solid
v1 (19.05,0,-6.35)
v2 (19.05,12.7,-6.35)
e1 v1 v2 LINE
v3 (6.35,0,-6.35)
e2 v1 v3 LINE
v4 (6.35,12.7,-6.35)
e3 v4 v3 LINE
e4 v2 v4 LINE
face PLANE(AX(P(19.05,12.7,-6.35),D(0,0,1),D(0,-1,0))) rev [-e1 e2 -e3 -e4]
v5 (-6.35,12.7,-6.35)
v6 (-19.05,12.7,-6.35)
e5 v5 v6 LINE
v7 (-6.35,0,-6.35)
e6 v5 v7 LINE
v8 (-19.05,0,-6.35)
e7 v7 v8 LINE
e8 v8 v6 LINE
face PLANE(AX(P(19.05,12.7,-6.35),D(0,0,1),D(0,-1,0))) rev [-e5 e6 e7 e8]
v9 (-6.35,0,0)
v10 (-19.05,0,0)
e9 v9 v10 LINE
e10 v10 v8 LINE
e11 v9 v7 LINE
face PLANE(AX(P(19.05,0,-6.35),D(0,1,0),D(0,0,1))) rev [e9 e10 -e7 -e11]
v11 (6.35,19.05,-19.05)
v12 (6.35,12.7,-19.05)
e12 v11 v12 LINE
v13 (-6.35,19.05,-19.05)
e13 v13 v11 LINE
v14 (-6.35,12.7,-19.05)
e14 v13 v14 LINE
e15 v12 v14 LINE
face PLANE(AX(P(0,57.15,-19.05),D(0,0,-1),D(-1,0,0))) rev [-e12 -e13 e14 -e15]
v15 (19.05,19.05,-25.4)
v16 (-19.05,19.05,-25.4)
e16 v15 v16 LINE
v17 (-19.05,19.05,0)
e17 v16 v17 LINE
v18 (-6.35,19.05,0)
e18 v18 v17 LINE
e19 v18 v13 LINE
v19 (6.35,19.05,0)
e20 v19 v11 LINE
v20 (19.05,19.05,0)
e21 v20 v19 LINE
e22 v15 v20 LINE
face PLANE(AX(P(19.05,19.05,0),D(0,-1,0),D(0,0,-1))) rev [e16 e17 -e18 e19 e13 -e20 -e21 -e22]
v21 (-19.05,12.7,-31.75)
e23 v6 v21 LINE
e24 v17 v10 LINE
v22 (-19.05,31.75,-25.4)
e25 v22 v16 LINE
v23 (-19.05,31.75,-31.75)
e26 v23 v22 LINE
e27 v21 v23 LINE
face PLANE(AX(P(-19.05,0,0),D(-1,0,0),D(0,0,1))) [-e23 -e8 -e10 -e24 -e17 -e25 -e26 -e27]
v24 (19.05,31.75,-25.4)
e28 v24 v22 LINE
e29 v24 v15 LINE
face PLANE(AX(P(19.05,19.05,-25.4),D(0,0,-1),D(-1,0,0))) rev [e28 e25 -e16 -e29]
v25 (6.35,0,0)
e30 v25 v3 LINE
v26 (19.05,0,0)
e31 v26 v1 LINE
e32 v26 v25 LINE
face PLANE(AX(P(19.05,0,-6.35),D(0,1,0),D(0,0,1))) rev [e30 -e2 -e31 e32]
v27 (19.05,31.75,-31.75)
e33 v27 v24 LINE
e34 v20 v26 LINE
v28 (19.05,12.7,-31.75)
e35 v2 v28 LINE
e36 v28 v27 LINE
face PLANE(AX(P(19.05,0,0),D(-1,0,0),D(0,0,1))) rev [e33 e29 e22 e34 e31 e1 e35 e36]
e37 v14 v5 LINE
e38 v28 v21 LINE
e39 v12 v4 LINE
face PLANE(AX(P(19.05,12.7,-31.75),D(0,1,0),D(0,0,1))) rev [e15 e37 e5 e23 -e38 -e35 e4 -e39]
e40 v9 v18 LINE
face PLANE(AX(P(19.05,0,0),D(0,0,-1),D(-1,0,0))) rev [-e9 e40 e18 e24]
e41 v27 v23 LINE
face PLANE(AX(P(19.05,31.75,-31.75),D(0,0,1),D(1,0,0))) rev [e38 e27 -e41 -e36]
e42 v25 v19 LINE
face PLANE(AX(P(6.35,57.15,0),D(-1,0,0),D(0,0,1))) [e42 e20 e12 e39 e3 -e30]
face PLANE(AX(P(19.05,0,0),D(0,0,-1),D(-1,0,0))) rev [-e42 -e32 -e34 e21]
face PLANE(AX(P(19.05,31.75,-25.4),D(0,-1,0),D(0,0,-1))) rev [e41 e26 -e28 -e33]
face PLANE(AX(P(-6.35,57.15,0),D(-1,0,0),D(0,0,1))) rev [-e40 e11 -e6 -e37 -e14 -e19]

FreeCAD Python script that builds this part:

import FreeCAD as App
import Part
import Sketcher

V = App.Vector
Q = App.Units.Quantity

doc = App.newDocument("Part")
body = doc.addObject("PartDesign::Body", "Body")

# Sketch on YZ plane
sketch1 = body.newObject("Sketcher::SketchObject", "Sketch")
sketch1.AttachmentSupport = (doc.getObject("YZ_Plane"), [""])
sketch1.MapMode = "FlatFace"
sketch1.addGeometry([
    Part.LineSegment(V(19, 0, 0), V(0, 0, 0)),  # 0
    Part.LineSegment(V(0, 0, 0), V(0, -6, 0)),  # 1
    Part.LineSegment(V(0, -6, 0), V(13, -6, 0)),  # 2
    Part.LineSegment(V(13, -6, 0), V(13, -32, 0)),  # 3
    Part.LineSegment(V(13, -32, 0), V(32, -32, 0)),  # 4
    Part.LineSegment(V(32, -32, 0), V(32, -25, 0)),  # 5
    Part.LineSegment(V(32, -25, 0), V(19, -25, 0)),  # 6
    Part.LineSegment(V(19, -25, 0), V(19, 0, 0)),  # 7
], False)
sketch1.addConstraint([
    Sketcher.Constraint("Coincident", 0, 2, 1, 1),
    Sketcher.Constraint("Coincident", 1, 2, 2, 1),
    Sketcher.Constraint("Coincident", 2, 2, 3, 1),
    Sketcher.Constraint("Coincident", 3, 2, 4, 1),
    Sketcher.Constraint("Coincident", 4, 2, 5, 1),
    Sketcher.Constraint("Coincident", 5, 2, 6, 1),
    Sketcher.Constraint("Coincident", 6, 2, 7, 1),
    Sketcher.Constraint("Coincident", 7, 2, 0, 1),
    Sketcher.Constraint("Horizontal", 0),
    Sketcher.Constraint("Vertical", 1),
    Sketcher.Constraint("Horizontal", 2),
    Sketcher.Constraint("Vertical", 3),
    Sketcher.Constraint("Horizontal", 4),
    Sketcher.Constraint("Vertical", 5),
    Sketcher.Constraint("Horizontal", 6),
    Sketcher.Constraint("Vertical", 7),
    Sketcher.Constraint("Coincident", 0, 2, -1, 1),
    Sketcher.Constraint("Equal", 0, 4),
    Sketcher.Constraint("Equal", 1, 5),
    Sketcher.Constraint("DistanceY", 3, 2, 3, 1, Q("1 in")),
    Sketcher.Constraint("DistanceX", 2, 1, 2, 2, Q("0.5 in")),
    Sketcher.Constraint("DistanceX", 0, 2, 0, 1, Q("0.75 in")),
    Sketcher.Constraint("DistanceY", 1, 2, 1, 1, Q("0.25 in")),
])
pad1 = body.newObject("PartDesign::Pad", "Pad")
pad1.Profile = sketch1
pad1.Length = Q("1.5 in")
pad1.Midplane = True

# Sketch on XZ plane
sketch2 = body.newObject("Sketcher::SketchObject", "Sketch001")
sketch2.AttachmentSupport = (doc.getObject("XZ_Plane"), [""])
sketch2.MapMode = "FlatFace"
sketch2.AttachmentOffset = App.Placement(V(0, 0, -0.75 * 25.4), App.Rotation())
sketch2.addGeometry([
    Part.LineSegment(V(-6, -19, 0), V(-6, 0, 0)),
    Part.LineSegment(V(-6, 0, 0), V(6, 0, 0)),
    Part.LineSegment(V(6, 0, 0), V(6, -19, 0)),
    Part.LineSegment(V(6, -19, 0), V(-6, -19, 0)),
], False)
sketch2.addConstraint([
    Sketcher.Constraint("Coincident", 0, 2, 1, 1),
    Sketcher.Constraint("Coincident", 1, 2, 2, 1),
    Sketcher.Constraint("Coincident", 2, 2, 3, 1),
    Sketcher.Constraint("Coincident", 3, 2, 0, 1),
    Sketcher.Constraint("Vertical", 0),
    Sketcher.Constraint("Horizontal", 1),
    Sketcher.Constraint("Vertical", 2),
    Sketcher.Constraint("Horizontal", 3),
    Sketcher.Constraint("Symmetric", 0, 2, 1, 2, -1, 1),
    Sketcher.Constraint("DistanceX", 1, 1, 1, 2, Q("0.5 in")),
    Sketcher.Constraint("DistanceY", 0, 1, 0, 2, Q("0.75 in")),
])
pocket1 = body.newObject("PartDesign::Pocket", "Pocket")
pocket1.Profile = sketch2
pocket1.Type = "ThroughAll"
pocket1.Midplane = True

doc.recompute()
